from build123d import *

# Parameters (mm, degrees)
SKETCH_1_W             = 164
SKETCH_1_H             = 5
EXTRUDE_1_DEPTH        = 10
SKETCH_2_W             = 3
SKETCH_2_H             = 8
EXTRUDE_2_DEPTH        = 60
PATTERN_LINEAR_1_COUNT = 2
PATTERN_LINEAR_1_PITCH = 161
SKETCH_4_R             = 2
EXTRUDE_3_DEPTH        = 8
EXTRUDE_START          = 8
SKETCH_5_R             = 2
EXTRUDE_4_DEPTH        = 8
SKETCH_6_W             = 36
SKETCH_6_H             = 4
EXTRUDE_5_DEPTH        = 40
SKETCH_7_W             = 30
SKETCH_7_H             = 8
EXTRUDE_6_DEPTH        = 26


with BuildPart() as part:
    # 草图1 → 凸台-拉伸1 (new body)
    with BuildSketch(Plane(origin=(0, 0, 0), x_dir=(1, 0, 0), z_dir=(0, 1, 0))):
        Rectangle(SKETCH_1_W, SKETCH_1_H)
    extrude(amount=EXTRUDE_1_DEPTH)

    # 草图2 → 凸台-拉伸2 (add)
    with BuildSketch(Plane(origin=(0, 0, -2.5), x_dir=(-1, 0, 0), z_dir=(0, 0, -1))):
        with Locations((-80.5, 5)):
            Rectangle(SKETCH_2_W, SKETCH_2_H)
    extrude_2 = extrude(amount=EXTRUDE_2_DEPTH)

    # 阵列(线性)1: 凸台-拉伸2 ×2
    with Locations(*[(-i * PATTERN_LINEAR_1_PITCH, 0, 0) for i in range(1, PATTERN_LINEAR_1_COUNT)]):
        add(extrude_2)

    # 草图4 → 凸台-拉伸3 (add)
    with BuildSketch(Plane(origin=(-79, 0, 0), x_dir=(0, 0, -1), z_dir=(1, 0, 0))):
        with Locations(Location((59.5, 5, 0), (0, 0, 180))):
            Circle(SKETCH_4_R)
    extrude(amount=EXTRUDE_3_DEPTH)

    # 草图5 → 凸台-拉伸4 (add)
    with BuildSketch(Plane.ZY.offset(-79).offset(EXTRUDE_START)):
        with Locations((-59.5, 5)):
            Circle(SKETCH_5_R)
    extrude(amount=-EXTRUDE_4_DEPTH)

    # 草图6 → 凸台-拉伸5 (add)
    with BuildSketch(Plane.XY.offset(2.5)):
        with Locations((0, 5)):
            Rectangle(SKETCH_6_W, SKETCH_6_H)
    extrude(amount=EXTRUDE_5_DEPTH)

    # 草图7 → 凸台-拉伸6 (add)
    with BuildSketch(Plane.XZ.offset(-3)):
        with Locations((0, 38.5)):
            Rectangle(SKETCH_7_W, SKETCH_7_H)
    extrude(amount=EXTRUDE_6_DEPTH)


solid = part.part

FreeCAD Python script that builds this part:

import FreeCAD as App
import Part
import Sketcher
from FreeCAD import Vector
Q = App.Units.Quantity


def add_polygon(sketch, points):
    """Adds a closed chain of lines whose ends are joined by coincident constraints."""
    first, n = sketch.GeometryCount, len(points)
    for a, b in zip(points, points[1:] + points[:1]):
        sketch.addGeometry(Part.LineSegment(App.Vector(*a, 0), App.Vector(*b, 0)), False)
    for i in range(n):
        sketch.addConstraint(Sketcher.Constraint("Coincident", first + i, 2, first + (i + 1) % n, 1))

doc = App.newDocument("Part")
body = doc.addObject("PartDesign::Body", "Body")

# Sketch on XZ plane
sketch1 = doc.addObject("Sketcher::SketchObject", "Sketch")
body.addObject(sketch1)
sketch1.AttachmentSupport = (doc.XZ_Plane, [""])
sketch1.MapMode = "FlatFace"
add_polygon(sketch1, [(-82, -2), (-82, 2), (82, 2), (82, -2)])  # lines 0-3
sketch1.addConstraint(Sketcher.Constraint("Vertical", 0))
sketch1.addConstraint(Sketcher.Constraint("Horizontal", 1))
sketch1.addConstraint(Sketcher.Constraint("Vertical", 2))
sketch1.addConstraint(Sketcher.Constraint("Horizontal", 3))
sketch1.addConstraint(Sketcher.Constraint("Symmetric", 0, 2, 2, 2, -1, 1))
sketch1.addConstraint(Sketcher.Constraint("DistanceX", 1, 1, 1, 2, Q("164 mm")))
sketch1.addConstraint(Sketcher.Constraint("DistanceY", 0, 1, 0, 2, Q("5 mm")))
pad1 = doc.addObject("PartDesign::Pad", "Pad")
body.addObject(pad1)
pad1.Profile = sketch1
pad1.Length = 10
pad1.Reversed = True

# Sketch on XY plane
sketch2 = doc.addObject("Sketcher::SketchObject", "Sketch001")
body.addObject(sketch2)
sketch2.AttachmentSupport = (doc.XY_Plane, [""])
sketch2.MapMode = "FlatFace"
sketch2.AttachmentOffset = App.Placement(Vector(0, 0, -2.5), App.Rotation())
add_polygon(sketch2, [(82, 9), (82, 1), (79, 1), (79, 9)])  # lines 0-3
sketch2.addConstraint(Sketcher.Constraint("Vertical", 0))
sketch2.addConstraint(Sketcher.Constraint("Horizontal", 1))
sketch2.addConstraint(Sketcher.Constraint("Vertical", 2))
sketch2.addConstraint(Sketcher.Constraint("Horizontal", 3))
sketch2.addConstraint(Sketcher.Constraint("DistanceX", 1, 2, 1, 1, Q("3 mm")))
sketch2.addConstraint(Sketcher.Constraint("DistanceY", 0, 2, 0, 1, Q("8 mm")))
sketch2.addConstraint(Sketcher.Constraint("DistanceX", -1, 1, 0, 2, Q("82 mm")))
sketch2.addConstraint(Sketcher.Constraint("DistanceY", -1, 1, 0, 2, Q("1 mm")))
pad2 = doc.addObject("PartDesign::Pad", "Pad001")
body.addObject(pad2)
pad2.Profile = sketch2
pad2.Length = 60
pad2.Reversed = True
doc.recompute()

linearpattern = doc.addObject("PartDesign::LinearPattern", "LinearPattern")
body.addObject(linearpattern)
linearpattern.Originals = [pad2]
linearpattern.Direction = (doc.X_Axis, [""])
linearpattern.Mode = "offset"
linearpattern.Offset = 161
linearpattern.Occurrences = 2
linearpattern.Reversed = True
body.Tip = linearpattern

# Sketch on YZ plane
sketch3 = doc.addObject("Sketcher::SketchObject", "Sketch002")
body.addObject(sketch3)
sketch3.AttachmentSupport = (doc.YZ_Plane, [""])
sketch3.MapMode = "FlatFace"
sketch3.AttachmentOffset = App.Placement(Vector(0, 0, -79), App.Rotation())
sketch3.addGeometry(Part.Circle(Vector(5, -59.5, 0), Vector(0, 0, 1), 2), False)
sketch3.addConstraint(Sketcher.Constraint("Diameter", 0, Q("4 mm")))
sketch3.addConstraint(Sketcher.Constraint("DistanceX", -1, 1, 0, 3, Q("5 mm")))
sketch3.addConstraint(Sketcher.Constraint("DistanceY", 0, 3, -1, 1, Q("59.5 mm")))
pad3 = doc.addObject("PartDesign::Pad", "Pad002")
body.addObject(pad3)
pad3.Profile = sketch3
pad3.Length = 8

# Sketch on YZ plane
sketch4 = doc.addObject("Sketcher::SketchObject", "Sketch003")
body.addObject(sketch4)
sketch4.AttachmentSupport = (doc.YZ_Plane, [""])
sketch4.MapMode = "FlatFace"
sketch4.AttachmentOffset = App.Placement(Vector(0, 0, 71), App.Rotation())
sketch4.addGeometry(Part.Circle(Vector(5, -59.5, 0), Vector(0, 0, 1), 2), False)
sketch4.addConstraint(Sketcher.Constraint("Diameter", 0, Q("4 mm")))
sketch4.addConstraint(Sketcher.Constraint("DistanceX", -1, 1, 0, 3, Q("5 mm")))
sketch4.addConstraint(Sketcher.Constraint("DistanceY", 0, 3, -1, 1, Q("59.5 mm")))
pad4 = doc.addObject("PartDesign::Pad", "Pad003")
body.addObject(pad4)
pad4.Profile = sketch4
pad4.Length = 8

# Sketch on XY plane
sketch5 = doc.addObject("Sketcher::SketchObject", "Sketch004")
body.addObject(sketch5)
sketch5.AttachmentSupport = (doc.XY_Plane, [""])
sketch5.MapMode = "FlatFace"
sketch5.AttachmentOffset = App.Placement(Vector(0, 0, 2.5), App.Rotation())
add_polygon(sketch5, [(-18, 7), (-18, 3), (18, 3), (18, 7)])  # lines 0-3
sketch5.addConstraint(Sketcher.Constraint("Vertical", 0))
sketch5.addConstraint(Sketcher.Constraint("Horizontal", 1))
sketch5.addConstraint(Sketcher.Constraint("Vertical", 2))
sketch5.addConstraint(Sketcher.Constraint("Horizontal", 3))
sketch5.addConstraint(Sketcher.Constraint("DistanceX", 1, 1, 1, 2, Q("36 mm")))
sketch5.addConstraint(Sketcher.Constraint("DistanceY", 0, 2, 0, 1, Q("4 mm")))
sketch5.addConstraint(Sketcher.Constraint("DistanceX", 0, 2, -1, 1, Q("18 mm")))
sketch5.addConstraint(Sketcher.Constraint("DistanceY", -1, 1, 0, 2, Q("3 mm")))
pad5 = doc.addObject("PartDesign::Pad", "Pad004")
body.addObject(pad5)
pad5.Profile = sketch5
pad5.Length = 40

# Sketch on XZ plane
sketch6 = doc.addObject("Sketcher::SketchObject", "Sketch005")
body.addObject(sketch6)
sketch6.AttachmentSupport = (doc.XZ_Plane, [""])
sketch6.MapMode = "FlatFace"
sketch6.AttachmentOffset = App.Placement(Vector(0, 0, -3), App.Rotation())
add_polygon(sketch6, [(-15, 42), (-15, 34), (15, 34), (15, 42)])  # lines 0-3
sketch6.addConstraint(Sketcher.Constraint("Vertical", 0))
sketch6.addConstraint(Sketcher.Constraint("Horizontal", 1))
sketch6.addConstraint(Sketcher.Constraint("Vertical", 2))
sketch6.addConstraint(Sketcher.Constraint("Horizontal", 3))
sketch6.addConstraint(Sketcher.Constraint("DistanceX", 1, 1, 1, 2, Q("30 mm")))
sketch6.addConstraint(Sketcher.Constraint("DistanceY", 0, 2, 0, 1, Q("8 mm")))
sketch6.addConstraint(Sketcher.Constraint("DistanceX", 0, 2, -1, 1, Q("15 mm")))
sketch6.addConstraint(Sketcher.Constraint("DistanceY", -1, 1, 0, 2, Q("34.5 mm")))
pad6 = doc.addObject("PartDesign::Pad", "Pad005")
body.addObject(pad6)
pad6.Profile = sketch6
pad6.Length = 26

doc.recompute()
